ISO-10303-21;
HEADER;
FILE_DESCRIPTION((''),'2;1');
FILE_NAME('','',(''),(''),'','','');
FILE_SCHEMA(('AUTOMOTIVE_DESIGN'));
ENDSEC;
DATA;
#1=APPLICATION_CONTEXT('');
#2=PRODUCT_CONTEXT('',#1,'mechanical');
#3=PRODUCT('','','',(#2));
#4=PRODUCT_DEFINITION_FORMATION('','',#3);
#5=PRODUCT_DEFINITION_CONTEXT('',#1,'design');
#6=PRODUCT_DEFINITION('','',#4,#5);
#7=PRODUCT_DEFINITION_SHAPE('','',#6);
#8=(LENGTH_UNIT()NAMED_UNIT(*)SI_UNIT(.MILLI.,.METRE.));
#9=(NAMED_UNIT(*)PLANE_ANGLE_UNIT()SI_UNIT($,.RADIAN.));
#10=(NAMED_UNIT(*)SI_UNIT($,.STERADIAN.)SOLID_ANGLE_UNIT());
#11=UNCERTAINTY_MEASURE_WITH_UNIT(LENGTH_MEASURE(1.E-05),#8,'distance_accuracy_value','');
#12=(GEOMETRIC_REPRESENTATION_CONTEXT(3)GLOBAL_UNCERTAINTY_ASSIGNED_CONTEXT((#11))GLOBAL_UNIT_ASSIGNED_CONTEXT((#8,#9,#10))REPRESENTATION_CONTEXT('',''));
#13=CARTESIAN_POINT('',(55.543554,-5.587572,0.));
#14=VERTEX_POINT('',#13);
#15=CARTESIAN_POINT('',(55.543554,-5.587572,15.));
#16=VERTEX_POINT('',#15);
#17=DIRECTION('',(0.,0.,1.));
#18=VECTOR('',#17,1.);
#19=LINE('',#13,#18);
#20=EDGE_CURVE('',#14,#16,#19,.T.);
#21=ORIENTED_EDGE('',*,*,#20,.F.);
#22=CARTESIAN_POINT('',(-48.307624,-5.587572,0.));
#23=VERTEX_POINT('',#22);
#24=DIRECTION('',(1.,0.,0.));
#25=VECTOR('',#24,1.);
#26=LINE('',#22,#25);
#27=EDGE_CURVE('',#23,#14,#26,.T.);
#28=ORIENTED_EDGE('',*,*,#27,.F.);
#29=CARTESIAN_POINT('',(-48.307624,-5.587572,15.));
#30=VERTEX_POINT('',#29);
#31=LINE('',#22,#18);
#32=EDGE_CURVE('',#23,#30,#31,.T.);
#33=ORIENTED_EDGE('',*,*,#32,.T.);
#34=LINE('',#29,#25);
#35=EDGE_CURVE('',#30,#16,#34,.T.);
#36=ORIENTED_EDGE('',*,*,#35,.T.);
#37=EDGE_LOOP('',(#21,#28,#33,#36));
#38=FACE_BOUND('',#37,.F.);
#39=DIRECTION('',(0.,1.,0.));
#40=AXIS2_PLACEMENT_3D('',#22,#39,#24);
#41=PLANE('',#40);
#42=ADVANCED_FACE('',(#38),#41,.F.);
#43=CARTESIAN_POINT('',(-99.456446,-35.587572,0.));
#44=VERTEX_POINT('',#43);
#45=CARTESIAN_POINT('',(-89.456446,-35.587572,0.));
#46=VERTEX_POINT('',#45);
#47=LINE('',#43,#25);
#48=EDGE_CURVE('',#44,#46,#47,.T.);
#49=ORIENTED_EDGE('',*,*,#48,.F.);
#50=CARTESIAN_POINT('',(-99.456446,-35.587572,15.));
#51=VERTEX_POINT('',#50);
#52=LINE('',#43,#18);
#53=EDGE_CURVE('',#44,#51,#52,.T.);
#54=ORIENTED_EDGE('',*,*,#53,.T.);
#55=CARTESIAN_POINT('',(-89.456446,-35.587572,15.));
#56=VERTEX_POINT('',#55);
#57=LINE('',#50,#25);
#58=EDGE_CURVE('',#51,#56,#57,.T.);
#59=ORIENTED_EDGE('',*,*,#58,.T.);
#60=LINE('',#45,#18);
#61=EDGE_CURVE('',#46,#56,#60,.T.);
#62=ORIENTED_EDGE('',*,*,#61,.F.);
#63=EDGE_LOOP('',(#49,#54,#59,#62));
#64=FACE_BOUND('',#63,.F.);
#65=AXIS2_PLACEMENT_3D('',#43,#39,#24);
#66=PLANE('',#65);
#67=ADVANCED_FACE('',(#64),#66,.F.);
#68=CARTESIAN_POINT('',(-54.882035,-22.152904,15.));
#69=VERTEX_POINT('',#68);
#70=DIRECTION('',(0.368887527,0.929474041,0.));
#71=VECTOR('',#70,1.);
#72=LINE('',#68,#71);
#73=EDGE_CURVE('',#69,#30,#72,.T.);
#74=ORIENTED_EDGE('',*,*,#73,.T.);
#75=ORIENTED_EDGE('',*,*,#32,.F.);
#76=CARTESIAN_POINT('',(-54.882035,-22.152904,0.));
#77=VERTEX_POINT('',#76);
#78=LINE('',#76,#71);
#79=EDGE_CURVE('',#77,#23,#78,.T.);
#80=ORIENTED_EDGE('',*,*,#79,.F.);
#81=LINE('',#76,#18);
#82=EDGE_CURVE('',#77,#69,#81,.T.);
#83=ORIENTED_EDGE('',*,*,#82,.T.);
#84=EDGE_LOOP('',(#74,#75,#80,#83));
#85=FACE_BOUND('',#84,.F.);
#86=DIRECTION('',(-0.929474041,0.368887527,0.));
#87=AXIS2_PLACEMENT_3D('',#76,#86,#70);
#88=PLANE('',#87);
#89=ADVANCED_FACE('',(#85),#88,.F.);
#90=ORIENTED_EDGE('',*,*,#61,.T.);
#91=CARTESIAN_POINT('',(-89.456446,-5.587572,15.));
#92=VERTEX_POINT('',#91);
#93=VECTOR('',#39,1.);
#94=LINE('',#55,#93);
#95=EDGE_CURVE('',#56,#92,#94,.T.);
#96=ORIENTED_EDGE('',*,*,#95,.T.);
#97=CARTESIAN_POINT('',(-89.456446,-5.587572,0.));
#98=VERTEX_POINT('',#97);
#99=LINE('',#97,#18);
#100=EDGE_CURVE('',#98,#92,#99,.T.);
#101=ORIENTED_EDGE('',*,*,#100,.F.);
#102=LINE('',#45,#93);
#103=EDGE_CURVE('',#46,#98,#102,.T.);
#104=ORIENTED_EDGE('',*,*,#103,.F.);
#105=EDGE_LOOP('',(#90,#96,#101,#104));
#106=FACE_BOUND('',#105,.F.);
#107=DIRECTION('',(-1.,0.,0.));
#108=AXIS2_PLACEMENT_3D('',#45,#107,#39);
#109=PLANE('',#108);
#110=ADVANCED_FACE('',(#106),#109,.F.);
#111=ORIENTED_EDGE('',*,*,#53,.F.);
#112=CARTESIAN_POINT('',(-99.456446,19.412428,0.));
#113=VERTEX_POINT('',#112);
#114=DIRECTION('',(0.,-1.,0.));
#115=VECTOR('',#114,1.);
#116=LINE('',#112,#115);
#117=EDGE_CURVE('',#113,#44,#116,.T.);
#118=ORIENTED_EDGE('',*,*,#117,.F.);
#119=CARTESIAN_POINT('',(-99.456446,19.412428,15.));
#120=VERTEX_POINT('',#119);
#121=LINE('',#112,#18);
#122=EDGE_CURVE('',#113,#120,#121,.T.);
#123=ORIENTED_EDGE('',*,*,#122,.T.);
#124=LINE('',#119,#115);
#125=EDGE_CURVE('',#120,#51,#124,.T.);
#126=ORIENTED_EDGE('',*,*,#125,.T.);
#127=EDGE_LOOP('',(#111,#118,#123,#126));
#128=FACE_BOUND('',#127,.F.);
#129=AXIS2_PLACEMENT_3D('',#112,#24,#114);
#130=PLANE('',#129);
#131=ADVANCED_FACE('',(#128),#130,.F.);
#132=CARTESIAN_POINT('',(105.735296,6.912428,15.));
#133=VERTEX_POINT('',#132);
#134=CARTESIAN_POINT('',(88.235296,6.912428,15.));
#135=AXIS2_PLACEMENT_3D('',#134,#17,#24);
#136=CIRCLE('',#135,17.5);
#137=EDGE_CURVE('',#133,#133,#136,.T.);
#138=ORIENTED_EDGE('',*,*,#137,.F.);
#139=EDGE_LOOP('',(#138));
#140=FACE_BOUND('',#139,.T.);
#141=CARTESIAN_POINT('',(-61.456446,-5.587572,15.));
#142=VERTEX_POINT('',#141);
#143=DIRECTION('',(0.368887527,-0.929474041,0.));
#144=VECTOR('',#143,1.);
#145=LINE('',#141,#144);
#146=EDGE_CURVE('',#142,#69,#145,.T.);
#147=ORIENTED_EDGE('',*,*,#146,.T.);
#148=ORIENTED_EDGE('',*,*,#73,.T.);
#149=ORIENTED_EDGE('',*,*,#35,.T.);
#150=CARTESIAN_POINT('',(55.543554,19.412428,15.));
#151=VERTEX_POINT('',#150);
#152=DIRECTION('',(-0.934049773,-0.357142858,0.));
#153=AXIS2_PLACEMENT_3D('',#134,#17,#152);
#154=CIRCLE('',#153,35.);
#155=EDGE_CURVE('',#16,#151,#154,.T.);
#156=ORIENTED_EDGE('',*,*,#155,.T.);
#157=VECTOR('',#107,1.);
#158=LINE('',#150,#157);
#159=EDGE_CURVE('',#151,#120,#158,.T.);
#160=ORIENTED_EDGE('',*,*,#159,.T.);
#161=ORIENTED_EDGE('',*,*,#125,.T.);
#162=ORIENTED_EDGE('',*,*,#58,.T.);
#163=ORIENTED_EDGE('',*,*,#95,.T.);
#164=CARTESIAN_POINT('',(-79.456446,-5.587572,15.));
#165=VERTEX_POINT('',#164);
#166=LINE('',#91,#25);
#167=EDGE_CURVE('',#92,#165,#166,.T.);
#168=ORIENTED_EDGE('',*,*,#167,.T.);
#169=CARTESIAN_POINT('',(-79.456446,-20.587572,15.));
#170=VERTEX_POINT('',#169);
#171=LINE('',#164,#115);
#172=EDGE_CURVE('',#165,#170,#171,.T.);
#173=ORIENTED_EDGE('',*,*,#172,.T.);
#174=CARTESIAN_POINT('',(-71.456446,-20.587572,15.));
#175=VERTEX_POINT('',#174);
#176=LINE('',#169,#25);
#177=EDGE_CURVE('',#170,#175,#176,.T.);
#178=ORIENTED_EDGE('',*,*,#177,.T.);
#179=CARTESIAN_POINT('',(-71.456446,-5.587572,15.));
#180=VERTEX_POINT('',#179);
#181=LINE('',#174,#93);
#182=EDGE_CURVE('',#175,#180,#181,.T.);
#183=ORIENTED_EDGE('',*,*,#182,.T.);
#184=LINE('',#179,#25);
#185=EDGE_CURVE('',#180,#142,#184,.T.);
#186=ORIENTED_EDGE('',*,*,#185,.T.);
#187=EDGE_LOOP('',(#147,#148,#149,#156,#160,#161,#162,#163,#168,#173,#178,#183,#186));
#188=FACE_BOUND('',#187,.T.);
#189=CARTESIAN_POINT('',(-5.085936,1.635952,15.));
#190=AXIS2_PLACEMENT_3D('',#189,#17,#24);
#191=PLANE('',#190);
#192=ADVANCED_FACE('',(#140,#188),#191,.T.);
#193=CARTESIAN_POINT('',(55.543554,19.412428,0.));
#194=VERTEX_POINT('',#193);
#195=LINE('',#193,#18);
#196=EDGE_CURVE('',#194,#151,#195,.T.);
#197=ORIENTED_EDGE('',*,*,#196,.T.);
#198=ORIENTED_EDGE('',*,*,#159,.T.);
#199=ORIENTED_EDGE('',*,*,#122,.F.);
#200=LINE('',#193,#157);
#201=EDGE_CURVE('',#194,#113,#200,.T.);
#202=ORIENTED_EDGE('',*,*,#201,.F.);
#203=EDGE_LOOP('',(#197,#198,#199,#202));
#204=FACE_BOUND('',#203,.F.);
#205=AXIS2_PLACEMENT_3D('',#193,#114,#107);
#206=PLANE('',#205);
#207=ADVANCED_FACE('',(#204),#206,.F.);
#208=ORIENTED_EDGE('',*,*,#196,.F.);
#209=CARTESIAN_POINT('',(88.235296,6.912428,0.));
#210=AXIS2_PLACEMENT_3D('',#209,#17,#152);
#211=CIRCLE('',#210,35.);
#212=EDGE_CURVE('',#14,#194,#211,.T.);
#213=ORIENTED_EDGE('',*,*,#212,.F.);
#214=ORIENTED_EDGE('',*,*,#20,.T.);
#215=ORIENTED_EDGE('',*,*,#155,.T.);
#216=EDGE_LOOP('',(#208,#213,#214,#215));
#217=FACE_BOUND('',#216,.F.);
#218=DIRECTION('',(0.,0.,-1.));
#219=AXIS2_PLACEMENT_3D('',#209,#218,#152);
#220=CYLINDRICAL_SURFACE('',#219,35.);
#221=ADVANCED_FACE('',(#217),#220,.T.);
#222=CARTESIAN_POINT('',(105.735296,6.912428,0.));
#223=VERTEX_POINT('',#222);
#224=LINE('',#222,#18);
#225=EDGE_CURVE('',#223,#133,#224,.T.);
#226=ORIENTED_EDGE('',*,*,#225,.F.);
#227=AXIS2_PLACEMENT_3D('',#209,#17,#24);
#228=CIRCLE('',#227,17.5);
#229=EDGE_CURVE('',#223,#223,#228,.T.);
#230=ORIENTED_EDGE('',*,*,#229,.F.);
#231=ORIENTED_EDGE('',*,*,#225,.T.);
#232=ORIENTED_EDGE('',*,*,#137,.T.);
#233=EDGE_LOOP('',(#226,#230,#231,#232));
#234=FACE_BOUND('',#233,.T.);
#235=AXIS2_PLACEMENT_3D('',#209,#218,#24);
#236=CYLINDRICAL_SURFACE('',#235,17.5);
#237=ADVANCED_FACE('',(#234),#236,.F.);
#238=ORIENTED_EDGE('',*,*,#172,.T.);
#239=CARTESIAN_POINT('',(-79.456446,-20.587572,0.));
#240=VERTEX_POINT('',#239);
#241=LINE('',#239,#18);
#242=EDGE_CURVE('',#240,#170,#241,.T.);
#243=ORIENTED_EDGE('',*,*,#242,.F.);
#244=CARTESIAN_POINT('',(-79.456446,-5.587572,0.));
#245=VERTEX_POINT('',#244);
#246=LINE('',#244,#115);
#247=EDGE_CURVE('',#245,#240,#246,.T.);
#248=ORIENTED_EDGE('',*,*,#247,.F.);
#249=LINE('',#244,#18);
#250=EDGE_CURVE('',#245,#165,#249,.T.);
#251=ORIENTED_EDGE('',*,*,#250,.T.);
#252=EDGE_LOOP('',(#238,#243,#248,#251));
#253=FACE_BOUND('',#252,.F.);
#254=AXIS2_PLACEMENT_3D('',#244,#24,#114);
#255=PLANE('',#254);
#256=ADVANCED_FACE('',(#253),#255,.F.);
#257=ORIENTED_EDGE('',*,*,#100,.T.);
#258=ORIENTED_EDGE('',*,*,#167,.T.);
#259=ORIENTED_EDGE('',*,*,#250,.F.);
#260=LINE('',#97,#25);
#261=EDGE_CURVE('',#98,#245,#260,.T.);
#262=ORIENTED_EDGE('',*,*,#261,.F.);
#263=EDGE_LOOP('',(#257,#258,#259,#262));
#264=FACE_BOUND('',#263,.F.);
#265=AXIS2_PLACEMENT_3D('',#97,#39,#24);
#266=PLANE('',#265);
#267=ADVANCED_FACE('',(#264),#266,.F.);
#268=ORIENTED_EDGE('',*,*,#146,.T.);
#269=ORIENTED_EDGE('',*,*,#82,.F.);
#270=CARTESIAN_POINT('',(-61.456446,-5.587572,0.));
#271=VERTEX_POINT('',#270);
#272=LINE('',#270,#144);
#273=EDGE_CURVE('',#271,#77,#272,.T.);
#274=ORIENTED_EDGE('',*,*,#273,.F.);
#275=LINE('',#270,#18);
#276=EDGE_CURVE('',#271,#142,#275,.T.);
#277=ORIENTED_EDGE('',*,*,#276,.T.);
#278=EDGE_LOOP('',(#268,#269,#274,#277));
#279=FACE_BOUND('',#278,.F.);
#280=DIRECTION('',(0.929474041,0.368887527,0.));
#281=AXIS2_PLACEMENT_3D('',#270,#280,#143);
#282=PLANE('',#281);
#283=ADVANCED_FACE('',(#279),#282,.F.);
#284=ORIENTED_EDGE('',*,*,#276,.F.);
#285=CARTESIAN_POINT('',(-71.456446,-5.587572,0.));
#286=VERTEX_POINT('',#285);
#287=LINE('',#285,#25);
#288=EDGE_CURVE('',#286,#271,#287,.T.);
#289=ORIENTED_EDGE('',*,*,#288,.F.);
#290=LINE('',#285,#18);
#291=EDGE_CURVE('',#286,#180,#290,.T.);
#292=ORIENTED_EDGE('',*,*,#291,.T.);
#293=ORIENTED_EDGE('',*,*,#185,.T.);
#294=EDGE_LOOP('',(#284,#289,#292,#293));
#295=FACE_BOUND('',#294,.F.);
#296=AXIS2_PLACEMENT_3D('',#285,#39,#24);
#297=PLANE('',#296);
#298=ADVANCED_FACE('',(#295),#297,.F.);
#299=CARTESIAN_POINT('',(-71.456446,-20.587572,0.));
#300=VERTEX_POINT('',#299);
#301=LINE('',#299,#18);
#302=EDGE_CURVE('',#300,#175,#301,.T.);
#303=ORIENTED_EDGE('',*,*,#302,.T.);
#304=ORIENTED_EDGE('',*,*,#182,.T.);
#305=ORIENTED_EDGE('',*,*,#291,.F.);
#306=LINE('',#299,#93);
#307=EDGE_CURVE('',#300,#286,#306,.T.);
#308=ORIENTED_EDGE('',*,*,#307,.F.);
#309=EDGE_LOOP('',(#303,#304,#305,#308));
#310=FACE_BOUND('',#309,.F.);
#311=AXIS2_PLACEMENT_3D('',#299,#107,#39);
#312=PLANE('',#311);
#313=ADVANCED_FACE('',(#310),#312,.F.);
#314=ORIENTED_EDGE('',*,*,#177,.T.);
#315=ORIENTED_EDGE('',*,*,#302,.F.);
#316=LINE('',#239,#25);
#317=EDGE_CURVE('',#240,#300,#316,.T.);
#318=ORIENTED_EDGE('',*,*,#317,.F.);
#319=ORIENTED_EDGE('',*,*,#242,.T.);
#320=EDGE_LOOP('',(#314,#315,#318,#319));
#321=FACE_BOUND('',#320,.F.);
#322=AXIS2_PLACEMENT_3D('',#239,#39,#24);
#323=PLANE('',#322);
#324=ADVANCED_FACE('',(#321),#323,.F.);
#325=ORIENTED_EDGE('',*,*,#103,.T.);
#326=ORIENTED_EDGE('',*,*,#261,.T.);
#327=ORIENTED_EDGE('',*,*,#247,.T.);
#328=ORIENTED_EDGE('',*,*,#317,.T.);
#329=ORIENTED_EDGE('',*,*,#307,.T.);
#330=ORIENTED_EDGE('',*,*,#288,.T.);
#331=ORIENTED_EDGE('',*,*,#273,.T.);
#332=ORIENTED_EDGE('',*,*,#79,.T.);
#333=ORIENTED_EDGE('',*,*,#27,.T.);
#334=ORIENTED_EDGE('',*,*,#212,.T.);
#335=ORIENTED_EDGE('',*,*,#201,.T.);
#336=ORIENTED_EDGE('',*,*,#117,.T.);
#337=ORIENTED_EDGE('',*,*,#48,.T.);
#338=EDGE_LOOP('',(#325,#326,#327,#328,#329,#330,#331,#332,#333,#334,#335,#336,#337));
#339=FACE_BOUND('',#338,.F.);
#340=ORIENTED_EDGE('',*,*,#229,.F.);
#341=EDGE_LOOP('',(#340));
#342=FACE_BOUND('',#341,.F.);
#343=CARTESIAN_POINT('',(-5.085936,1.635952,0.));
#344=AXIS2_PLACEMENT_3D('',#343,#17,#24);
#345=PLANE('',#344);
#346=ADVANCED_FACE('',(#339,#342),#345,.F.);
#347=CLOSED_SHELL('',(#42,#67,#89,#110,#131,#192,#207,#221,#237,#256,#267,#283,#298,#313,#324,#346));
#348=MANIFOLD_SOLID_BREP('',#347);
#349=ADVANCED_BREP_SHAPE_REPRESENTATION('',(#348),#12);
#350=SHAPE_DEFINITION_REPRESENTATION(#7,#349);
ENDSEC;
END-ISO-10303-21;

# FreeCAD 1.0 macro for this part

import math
import FreeCAD as App
import Part
import Sketcher

V = App.Vector
Q = App.Units.Quantity

doc = App.newDocument("Part")
body = doc.addObject("PartDesign::Body", "Body")

# Sketch on XY plane
sketch1 = doc.addObject("Sketcher::SketchObject", "Sketch")
body.addObject(sketch1)
sketch1.AttachmentSupport = (doc.XY_Plane, [""])
sketch1.MapMode = "FlatFace"
sketch1.addGeometry(Part.LineSegment(V(56, 19, 0), V(-99, 19, 0)), False)
sketch1.addGeometry(Part.LineSegment(V(-99, 19, 0), V(-99, -36, 0)), False)
sketch1.addGeometry(Part.LineSegment(V(-99, -36, 0), V(-89, -36, 0)), False)
sketch1.addGeometry(Part.LineSegment(V(-89, -36, 0), V(-89, -6, 0)), False)
sketch1.addGeometry(Part.LineSegment(V(-89, -6, 0), V(-79, -6, 0)), False)
sketch1.addGeometry(Part.LineSegment(V(-79, -6, 0), V(-79, -21, 0)), False)
sketch1.addGeometry(Part.LineSegment(V(-79, -21, 0), V(-71, -21, 0)), False)
sketch1.addGeometry(Part.LineSegment(V(-71, -21, 0), V(-71, -6, 0)), False)
sketch1.addGeometry(Part.LineSegment(V(-71, -6, 0), V(-61, -6, 0)), False)
sketch1.addGeometry(Part.LineSegment(V(-61, -6, 0), V(-55, -22, 0)), False)
sketch1.addGeometry(Part.LineSegment(V(-55, -22, 0), V(-48, -6, 0)), False)
sketch1.addGeometry(Part.LineSegment(V(-48, -6, 0), V(56, -6, 0)), False)
sketch1.addGeometry(Part.ArcOfCircle(Part.Circle(V(88, 7, 0), V(0, 0, 1), 35), math.radians(-159), math.radians(159)), False)
sketch1.addGeometry(Part.Circle(V(88, 7, 0), V(0, 0, 1), 18), False)
sketch1.addConstraint(Sketcher.Constraint("Coincident", 0, 2, 1, 1))
sketch1.addConstraint(Sketcher.Constraint("Coincident", 1, 2, 2, 1))
sketch1.addConstraint(Sketcher.Constraint("Coincident", 2, 2, 3, 1))
sketch1.addConstraint(Sketcher.Constraint("Coincident", 3, 2, 4, 1))
sketch1.addConstraint(Sketcher.Constraint("Coincident", 4, 2, 5, 1))
sketch1.addConstraint(Sketcher.Constraint("Coincident", 5, 2, 6, 1))
sketch1.addConstraint(Sketcher.Constraint("Coincident", 6, 2, 7, 1))
sketch1.addConstraint(Sketcher.Constraint("Coincident", 7, 2, 8, 1))
sketch1.addConstraint(Sketcher.Constraint("Coincident", 8, 2, 9, 1))
sketch1.addConstraint(Sketcher.Constraint("Coincident", 9, 2, 10, 1))
sketch1.addConstraint(Sketcher.Constraint("Coincident", 10, 2, 11, 1))
sketch1.addConstraint(Sketcher.Constraint("Coincident", 11, 2, 12, 1))
sketch1.addConstraint(Sketcher.Constraint("Coincident", 12, 2, 0, 1))
sketch1.addConstraint(Sketcher.Constraint("Horizontal", 0))
sketch1.addConstraint(Sketcher.Constraint("Vertical", 1))
sketch1.addConstraint(Sketcher.Constraint("Horizontal", 2))
sketch1.addConstraint(Sketcher.Constraint("Vertical", 3))
sketch1.addConstraint(Sketcher.Constraint("Horizontal", 4))
sketch1.addConstraint(Sketcher.Constraint("Vertical", 5))
sketch1.addConstraint(Sketcher.Constraint("Horizontal", 6))
sketch1.addConstraint(Sketcher.Constraint("Vertical", 7))
sketch1.addConstraint(Sketcher.Constraint("Horizontal", 8))
sketch1.addConstraint(Sketcher.Constraint("Horizontal", 11))
sketch1.addConstraint(Sketcher.Constraint("Coincident", 13, 3, 12, 3))
sketch1.addConstraint(Sketcher.Constraint("Horizontal", 4, 2, 7, 2))
sketch1.addConstraint(Sketcher.Constraint("Horizontal", 8, 2, 10, 2))
sketch1.addConstraint(Sketcher.Constraint("Vertical", 11, 2, 12, 2))
sketch1.addConstraint(Sketcher.Constraint("Equal", 2, 4))
sketch1.addConstraint(Sketcher.Constraint("Equal", 4, 8))
sketch1.addConstraint(Sketcher.Constraint("Equal", 9, 10))
sketch1.addConstraint(Sketcher.Constraint("Diameter", 13, Q("35 mm")))
sketch1.addConstraint(Sketcher.Constraint("Radius", 12, Q("35 mm")))
sketch1.addConstraint(Sketcher.Constraint("DistanceX", 0, 2, 0, 1, Q("155 mm")))
sketch1.addConstraint(Sketcher.Constraint("DistanceX", 2, 1, 2, 2, Q("10 mm")))
sketch1.addConstraint(Sketcher.Constraint("DistanceX", 6, 1, 6, 2, Q("8 mm")))
sketch1.addConstraint(Sketcher.Constraint("DistanceY", 1, 2, 1, 1, Q("55 mm")))
sketch1.addConstraint(Sketcher.Constraint("DistanceY", 3, 1, 3, 2, Q("30 mm")))
sketch1.addConstraint(Sketcher.Constraint("DistanceY", 5, 2, 5, 1, Q("15 mm")))
sketch1.addConstraint(Sketcher.Constraint("DistanceX", 11, 1, 11, 2, Q("103.851178 mm")))
sketch1.addConstraint(Sketcher.Constraint("DistanceY", -1, 1, 12, 3, Q("6.912428 mm")))
sketch1.addConstraint(Sketcher.Constraint("DistanceY", 9, 2, 6, 2, Q("1.565332 mm")))
sketch1.addConstraint(Sketcher.Constraint("DistanceX", -1, 1, 12, 3, Q("88.235296 mm")))
pad1 = doc.addObject("PartDesign::Pad", "Pad")
body.addObject(pad1)
pad1.Profile = sketch1
pad1.Length = 15

doc.recompute()
